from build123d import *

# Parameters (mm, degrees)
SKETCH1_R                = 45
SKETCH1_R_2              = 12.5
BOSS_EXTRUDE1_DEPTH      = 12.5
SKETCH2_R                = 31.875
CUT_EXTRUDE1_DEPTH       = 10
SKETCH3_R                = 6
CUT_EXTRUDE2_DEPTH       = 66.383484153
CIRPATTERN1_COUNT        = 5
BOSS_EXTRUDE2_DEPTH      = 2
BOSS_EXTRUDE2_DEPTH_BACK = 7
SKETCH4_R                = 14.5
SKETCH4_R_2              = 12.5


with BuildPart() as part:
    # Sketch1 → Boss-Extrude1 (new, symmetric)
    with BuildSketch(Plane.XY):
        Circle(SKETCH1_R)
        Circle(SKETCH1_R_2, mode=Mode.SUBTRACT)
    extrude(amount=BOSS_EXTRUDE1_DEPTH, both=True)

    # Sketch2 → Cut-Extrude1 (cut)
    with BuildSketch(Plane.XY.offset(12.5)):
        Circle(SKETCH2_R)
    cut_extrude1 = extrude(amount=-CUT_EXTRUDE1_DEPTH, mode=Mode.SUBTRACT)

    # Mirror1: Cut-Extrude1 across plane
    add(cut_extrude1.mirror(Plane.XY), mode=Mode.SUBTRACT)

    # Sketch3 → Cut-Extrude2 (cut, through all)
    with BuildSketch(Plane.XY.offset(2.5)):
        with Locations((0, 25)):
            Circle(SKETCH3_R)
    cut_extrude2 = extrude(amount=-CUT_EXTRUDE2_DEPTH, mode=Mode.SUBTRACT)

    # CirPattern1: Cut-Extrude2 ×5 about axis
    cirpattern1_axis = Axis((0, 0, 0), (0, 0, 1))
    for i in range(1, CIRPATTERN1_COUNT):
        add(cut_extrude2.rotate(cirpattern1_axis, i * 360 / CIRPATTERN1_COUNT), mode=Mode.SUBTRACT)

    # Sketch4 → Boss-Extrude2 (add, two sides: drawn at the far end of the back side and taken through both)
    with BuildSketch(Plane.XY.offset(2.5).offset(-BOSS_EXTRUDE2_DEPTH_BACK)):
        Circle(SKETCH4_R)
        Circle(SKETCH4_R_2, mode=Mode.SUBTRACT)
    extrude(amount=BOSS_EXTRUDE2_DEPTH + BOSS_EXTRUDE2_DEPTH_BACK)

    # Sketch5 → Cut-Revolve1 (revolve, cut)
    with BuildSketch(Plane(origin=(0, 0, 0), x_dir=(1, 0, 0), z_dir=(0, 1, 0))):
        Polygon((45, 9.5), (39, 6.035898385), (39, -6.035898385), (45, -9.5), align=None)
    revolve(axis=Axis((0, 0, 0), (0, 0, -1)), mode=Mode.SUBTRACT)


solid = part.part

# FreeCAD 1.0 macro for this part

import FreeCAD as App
import Part
import Sketcher
from FreeCAD import Vector
Q = App.Units.Quantity

doc = App.newDocument("Part")
body = doc.addObject("PartDesign::Body", "Body")

sketch1 = body.newObject("Sketcher::SketchObject", "Sketch")
sketch1.AttachmentSupport = (doc.getObject("XY_Plane"), [""])
sketch1.MapMode = "FlatFace"
sketch1.addGeometry(Part.Circle(Vector(0, 0, 0), Vector(0, 0, 1), 45), False)
sketch1.addGeometry(Part.Circle(Vector(0, 0, 0), Vector(0, 0, 1), 12), False)
sketch1.addConstraint(Sketcher.Constraint("Coincident", 0, 3, -1, 1))
sketch1.addConstraint(Sketcher.Constraint("Coincident", 1, 3, -1, 1))
sketch1.addConstraint(Sketcher.Constraint("Diameter", 0, Q("90 mm")))
sketch1.addConstraint(Sketcher.Constraint("Diameter", 1, Q("25 mm")))
pad1 = body.newObject("PartDesign::Pad", "Pad")
pad1.Profile = sketch1
pad1.Length = 25
pad1.Midplane = True

sketch2 = body.newObject("Sketcher::SketchObject", "Sketch001")
sketch2.AttachmentSupport = (doc.getObject("XY_Plane"), [""])
sketch2.MapMode = "FlatFace"
sketch2.AttachmentOffset = App.Placement(Vector(0, 0, 12.5), App.Rotation())
sketch2.addGeometry(Part.Circle(Vector(0, 0, 0), Vector(0, 0, 1), 32), False)
sketch2.addConstraint(Sketcher.Constraint("Coincident", 0, 3, -1, 1))
sketch2.addConstraint(Sketcher.Constraint("Diameter", 0, Q("63.75 mm")))
pocket1 = body.newObject("PartDesign::Pocket", "Pocket")
pocket1.Profile = sketch2
pocket1.Length = 10
doc.recompute()

mirrored = body.newObject("PartDesign::Mirrored", "Mirrored")
mirrored.Originals = [pocket1]
mirrored.MirrorPlane = (doc.getObject("XY_Plane"), [""])
body.Tip = mirrored

sketch3 = body.newObject("Sketcher::SketchObject", "Sketch002")
sketch3.AttachmentSupport = (doc.getObject("XY_Plane"), [""])
sketch3.MapMode = "FlatFace"
sketch3.AttachmentOffset = App.Placement(Vector(0, 0, 2.5), App.Rotation())
sketch3.addGeometry(Part.Circle(Vector(0, 25, 0), Vector(0, 0, 1), 6), False)
sketch3.addConstraint(Sketcher.Constraint("PointOnObject", 0, 3, -2))
sketch3.addConstraint(Sketcher.Constraint("Diameter", 0, Q("12 mm")))
sketch3.addConstraint(Sketcher.Constraint("DistanceY", -1, 1, 0, 3, Q("25 mm")))
pocket2 = body.newObject("PartDesign::Pocket", "Pocket001")
pocket2.Profile = sketch3
pocket2.Type = "ThroughAll"
doc.recompute()

polarpattern = body.newObject("PartDesign::PolarPattern", "PolarPattern")
polarpattern.Originals = [pocket2]
polarpattern.Axis = (doc.getObject("Z_Axis"), [""])
polarpattern.Angle = 360
polarpattern.Occurrences = 5
body.Tip = polarpattern

sketch4 = body.newObject("Sketcher::SketchObject", "Sketch003")
sketch4.AttachmentSupport = (doc.getObject("XY_Plane"), [""])
sketch4.MapMode = "FlatFace"
sketch4.AttachmentOffset = App.Placement(Vector(0, 0, 2.5), App.Rotation())
sketch4.addGeometry(Part.Circle(Vector(0, 0, 0), Vector(0, 0, 1), 14), False)
sketch4.addGeometry(Part.Circle(Vector(0, 0, 0), Vector(0, 0, 1), 12), False)
sketch4.addConstraint(Sketcher.Constraint("Coincident", 0, 3, -1, 1))
sketch4.addConstraint(Sketcher.Constraint("Coincident", 1, 3, -1, 1))
sketch4.addConstraint(Sketcher.Constraint("Diameter", 0, Q("29 mm")))
sketch4.addConstraint(Sketcher.Constraint("Diameter", 1, Q("25 mm")))
pad2 = body.newObject("PartDesign::Pad", "Pad001")
pad2.Profile = sketch4
pad2.Type = "TwoLengths"
pad2.Length = 2
pad2.Length2 = 7

sketch5 = body.newObject("Sketcher::SketchObject", "Sketch004")
sketch5.AttachmentSupport = (doc.getObject("XZ_Plane"), [""])
sketch5.MapMode = "FlatFace"
sketch5.addGeometry(Part.LineSegment(Vector(45, -10, 0), Vector(39, -6, 0)), False)
sketch5.addGeometry(Part.LineSegment(Vector(39, -6, 0), Vector(39, 6, 0)), False)
sketch5.addGeometry(Part.LineSegment(Vector(39, 6, 0), Vector(45, 10, 0)), False)
sketch5.addGeometry(Part.LineSegment(Vector(45, 10, 0), Vector(45, -10, 0)), False)
sketch5.addConstraint(Sketcher.Constraint("Coincident", 0, 2, 1, 1))
sketch5.addConstraint(Sketcher.Constraint("Coincident", 1, 2, 2, 1))
sketch5.addConstraint(Sketcher.Constraint("Coincident", 2, 2, 3, 1))
sketch5.addConstraint(Sketcher.Constraint("Coincident", 3, 2, 0, 1))
sketch5.addConstraint(Sketcher.Constraint("Vertical", 1))
sketch5.addConstraint(Sketcher.Constraint("Vertical", 3))
sketch5.addConstraint(Sketcher.Constraint("Equal", 0, 2))
sketch5.addConstraint(Sketcher.Constraint("DistanceY", 3, 2, 3, 1, Q("19 mm")))
sketch5.addConstraint(Sketcher.Constraint("Angle", 0, Q("150 deg")))
sketch5.addConstraint(Sketcher.Constraint("DistanceX", -1, 1, 0, 2, Q("39 mm")))
sketch5.addConstraint(Sketcher.Constraint("DistanceX", -1, 1, 2, 2, Q("45 mm")))
sketch5.addConstraint(Sketcher.Constraint("DistanceY", -1, 1, 2, 2, Q("9.5 mm")))
groove = body.newObject("PartDesign::Groove", "Groove")
groove.Profile = sketch5
groove.ReferenceAxis = (sketch5, ["V_Axis"])
groove.Angle = 360

doc.recompute()
